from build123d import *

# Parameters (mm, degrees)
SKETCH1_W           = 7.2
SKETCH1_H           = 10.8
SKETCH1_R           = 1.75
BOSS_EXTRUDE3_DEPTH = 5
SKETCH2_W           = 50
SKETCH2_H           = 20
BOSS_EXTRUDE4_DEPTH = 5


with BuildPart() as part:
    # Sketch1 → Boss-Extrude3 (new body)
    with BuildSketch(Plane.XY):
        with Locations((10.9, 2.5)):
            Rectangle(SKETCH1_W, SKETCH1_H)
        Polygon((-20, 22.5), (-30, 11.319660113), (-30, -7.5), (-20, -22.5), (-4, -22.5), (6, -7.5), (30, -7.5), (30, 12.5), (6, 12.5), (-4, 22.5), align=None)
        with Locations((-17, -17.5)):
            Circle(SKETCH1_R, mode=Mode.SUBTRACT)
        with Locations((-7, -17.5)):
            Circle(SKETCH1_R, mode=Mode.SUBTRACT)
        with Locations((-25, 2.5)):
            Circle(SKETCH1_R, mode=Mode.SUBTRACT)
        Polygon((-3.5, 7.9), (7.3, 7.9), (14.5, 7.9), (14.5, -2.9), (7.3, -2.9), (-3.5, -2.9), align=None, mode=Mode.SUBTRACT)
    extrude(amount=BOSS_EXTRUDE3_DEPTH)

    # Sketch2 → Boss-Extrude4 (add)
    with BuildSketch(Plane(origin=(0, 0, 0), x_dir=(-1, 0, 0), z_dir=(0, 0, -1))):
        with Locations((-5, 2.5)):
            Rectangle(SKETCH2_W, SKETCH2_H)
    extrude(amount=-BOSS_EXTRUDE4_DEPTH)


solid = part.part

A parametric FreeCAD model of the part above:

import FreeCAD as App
import Part
import Sketcher

V = App.Vector
Q = App.Units.Quantity


def add_polygon(sketch, points):
    """Adds a closed chain of lines whose ends are joined by coincident constraints."""
    first, n = sketch.GeometryCount, len(points)
    for a, b in zip(points, points[1:] + points[:1]):
        sketch.addGeometry(Part.LineSegment(App.Vector(*a, 0), App.Vector(*b, 0)), False)
    for i in range(n):
        sketch.addConstraint(Sketcher.Constraint("Coincident", first + i, 2, first + (i + 1) % n, 1))

doc = App.newDocument("Part")
body = doc.addObject("PartDesign::Body", "Body")

# Sketch on XY plane
sketch1 = body.newObject("Sketcher::SketchObject", "Sketch")
sketch1.AttachmentSupport = (doc.getObject("XY_Plane"), [""])
sketch1.MapMode = "FlatFace"
add_polygon(sketch1, [(-20, 22.5), (-30, 11.3), (-30, -7.5), (-20, -22.5), (-4, -22.5), (6, -7.5), (30, -7.5), (30, 12.5), (6, 12.5), (-4, 22.5)])  # lines 0-9
sketch1.addGeometry(Part.Circle(V(-17, -17.5, 0), V(0, 0, 1), 1.8), False)  # 10
sketch1.addGeometry(Part.Circle(V(-7, -17.5, 0), V(0, 0, 1), 1.8), False)  # 11
sketch1.addGeometry(Part.Circle(V(-25, 2.5, 0), V(0, 0, 1), 1.8), False)  # 12
add_polygon(sketch1, [(-3.5, -2.9), (-3.5, 7.9), (14.5, 7.9), (14.5, -2.9)])  # lines 13-16
sketch1.addConstraint([
    Sketcher.Constraint("Vertical", 1),
    Sketcher.Constraint("Horizontal", 3),
    Sketcher.Constraint("Horizontal", 5),
    Sketcher.Constraint("Vertical", 6),
    Sketcher.Constraint("Horizontal", 7),
    Sketcher.Constraint("Horizontal", 9),
    Sketcher.Constraint("Vertical", 13),
    Sketcher.Constraint("Horizontal", 14),
    Sketcher.Constraint("Vertical", 15),
    Sketcher.Constraint("Horizontal", 16),
    Sketcher.Constraint("Equal", 10, 11),
    Sketcher.Constraint("Equal", 11, 12),
    Sketcher.Constraint("Symmetric", 1, 2, 5, 2, -2),
    Sketcher.Constraint("Symmetric", 3, 2, 8, 2, -1),
    Sketcher.Constraint("Horizontal", 10, 3, 11, 3),
    Sketcher.Constraint("Vertical", 4, 2, 7, 2),
    Sketcher.Constraint("Vertical", 2, 2, 9, 2),
    Sketcher.Constraint("Equal", 2, 4),
    Sketcher.Constraint("Diameter", 10, 3.5),
    Sketcher.Constraint("DistanceX", 3, 1, 3, 2, 16.0),
    Sketcher.Constraint("DistanceX", 5, 1, 5, 2, 24.0),
    Sketcher.Constraint("DistanceX", 14, 1, 14, 2, 18.0),
    Sketcher.Constraint("DistanceY", 6, 1, 6, 2, 20.0),
    Sketcher.Constraint("Angle", 8, Q("135 deg")),
    Sketcher.Constraint("Distance", 0, 15.0),
    Sketcher.Constraint("DistanceY", 13, 1, 13, 2, 10.8),
    Sketcher.Constraint("DistanceX", 10, 3, -1, 1, 17.0),
    Sketcher.Constraint("DistanceX", 11, 3, -1, 1, 7.0),
    Sketcher.Constraint("DistanceX", 12, 3, -1, 1, 25.0),
    Sketcher.Constraint("DistanceX", 0, 2, -1, 1, 30.0),
    Sketcher.Constraint("DistanceY", 10, 3, 12, 3, 20.0),
    Sketcher.Constraint("DistanceY", 1, 2, 12, 3, 10.0),
    Sketcher.Constraint("DistanceY", 2, 2, 10, 3, 5.0),
    Sketcher.Constraint("DistanceX", 13, 2, -1, 1, 3.5),
    Sketcher.Constraint("DistanceY", -1, 1, 13, 2, 7.9),
])
pad1 = body.newObject("PartDesign::Pad", "Pad")
pad1.Profile = sketch1
pad1.Length = 5

# Sketch on XY plane
sketch2 = body.newObject("Sketcher::SketchObject", "Sketch001")
sketch2.AttachmentSupport = (doc.getObject("XY_Plane"), [""])
sketch2.MapMode = "FlatFace"
add_polygon(sketch2, [(30, 12), (30, -8), (-20, -8), (-20, 12)])  # lines 0-3
sketch2.addConstraint([
    Sketcher.Constraint("Vertical", 0),
    Sketcher.Constraint("Horizontal", 1),
    Sketcher.Constraint("Vertical", 2),
    Sketcher.Constraint("Horizontal", 3),
    Sketcher.Constraint("DistanceX", 1, 2, 1, 1, 50.0),
    Sketcher.Constraint("DistanceY", 0, 2, 0, 1, 20.0),
    Sketcher.Constraint("DistanceX", -1, 1, 0, 2, 30.0),
    Sketcher.Constraint("DistanceY", 0, 2, -1, 1, 7.5),
])
pad2 = body.newObject("PartDesign::Pad", "Pad001")
pad2.Profile = sketch2
pad2.Length = 5

doc.recompute()
